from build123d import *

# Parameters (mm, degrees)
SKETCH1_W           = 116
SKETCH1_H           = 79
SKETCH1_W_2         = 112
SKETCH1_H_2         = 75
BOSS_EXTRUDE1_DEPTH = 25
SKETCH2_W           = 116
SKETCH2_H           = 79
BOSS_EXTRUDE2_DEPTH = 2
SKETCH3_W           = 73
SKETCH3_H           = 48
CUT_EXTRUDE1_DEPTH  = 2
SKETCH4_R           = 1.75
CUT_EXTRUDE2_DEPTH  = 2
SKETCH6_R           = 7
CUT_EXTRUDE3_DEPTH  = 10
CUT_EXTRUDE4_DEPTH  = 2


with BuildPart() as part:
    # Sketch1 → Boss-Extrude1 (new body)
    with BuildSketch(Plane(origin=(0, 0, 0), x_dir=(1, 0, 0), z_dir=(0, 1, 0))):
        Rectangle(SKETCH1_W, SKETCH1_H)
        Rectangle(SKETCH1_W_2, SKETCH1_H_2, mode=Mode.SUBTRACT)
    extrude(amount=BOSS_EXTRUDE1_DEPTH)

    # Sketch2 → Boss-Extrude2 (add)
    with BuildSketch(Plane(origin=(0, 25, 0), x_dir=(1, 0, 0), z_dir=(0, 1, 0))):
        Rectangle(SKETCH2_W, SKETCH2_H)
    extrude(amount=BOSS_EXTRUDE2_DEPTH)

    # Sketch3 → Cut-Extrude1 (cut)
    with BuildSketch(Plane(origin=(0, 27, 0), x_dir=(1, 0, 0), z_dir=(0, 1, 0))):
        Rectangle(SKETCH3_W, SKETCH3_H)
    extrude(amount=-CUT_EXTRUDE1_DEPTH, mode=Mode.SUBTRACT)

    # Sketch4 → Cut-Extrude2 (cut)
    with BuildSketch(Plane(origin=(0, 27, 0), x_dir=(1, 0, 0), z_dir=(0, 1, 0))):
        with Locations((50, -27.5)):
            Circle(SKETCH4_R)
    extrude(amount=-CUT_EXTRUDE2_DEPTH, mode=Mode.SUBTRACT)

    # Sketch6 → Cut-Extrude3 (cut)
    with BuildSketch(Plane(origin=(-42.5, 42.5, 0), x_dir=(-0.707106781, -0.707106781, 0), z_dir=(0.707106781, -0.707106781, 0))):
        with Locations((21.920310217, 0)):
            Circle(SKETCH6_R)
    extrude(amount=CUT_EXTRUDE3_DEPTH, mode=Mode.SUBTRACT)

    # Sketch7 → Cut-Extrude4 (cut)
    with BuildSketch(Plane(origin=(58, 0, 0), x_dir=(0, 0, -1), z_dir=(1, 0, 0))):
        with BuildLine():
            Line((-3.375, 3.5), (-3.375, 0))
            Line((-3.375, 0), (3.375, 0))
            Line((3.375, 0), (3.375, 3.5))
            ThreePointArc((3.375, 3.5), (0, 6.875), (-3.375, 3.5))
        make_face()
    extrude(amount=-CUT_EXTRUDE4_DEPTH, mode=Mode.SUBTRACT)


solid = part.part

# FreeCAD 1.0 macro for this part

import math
import FreeCAD as App
import Part
import Sketcher
Q = App.Units.Quantity

doc = App.newDocument("Part")
body = doc.addObject("PartDesign::Body", "Body")

# Sketch on XZ plane
sketch1 = body.newObject("Sketcher::SketchObject", "Sketch")
sketch1.AttachmentSupport = (doc.getObject("XZ_Plane"), [""])
sketch1.MapMode = "FlatFace"
sketch1.addGeometry(Part.LineSegment(App.Vector(-58, -39.5, 0), App.Vector(-58, 39.5, 0)), False)
sketch1.addGeometry(Part.LineSegment(App.Vector(-58, 39.5, 0), App.Vector(58, 39.5, 0)), False)
sketch1.addGeometry(Part.LineSegment(App.Vector(58, 39.5, 0), App.Vector(58, -39.5, 0)), False)
sketch1.addGeometry(Part.LineSegment(App.Vector(58, -39.5, 0), App.Vector(-58, -39.5, 0)), False)
sketch1.addGeometry(Part.LineSegment(App.Vector(56, 37.5, 0), App.Vector(-56, 37.5, 0)), False)
sketch1.addGeometry(Part.LineSegment(App.Vector(-56, 37.5, 0), App.Vector(-56, -37.5, 0)), False)
sketch1.addGeometry(Part.LineSegment(App.Vector(-56, -37.5, 0), App.Vector(56, -37.5, 0)), False)
sketch1.addGeometry(Part.LineSegment(App.Vector(56, -37.5, 0), App.Vector(56, 37.5, 0)), False)
sketch1.addConstraint(Sketcher.Constraint("Coincident", 0, 2, 1, 1))
sketch1.addConstraint(Sketcher.Constraint("Coincident", 1, 2, 2, 1))
sketch1.addConstraint(Sketcher.Constraint("Coincident", 2, 2, 3, 1))
sketch1.addConstraint(Sketcher.Constraint("Coincident", 3, 2, 0, 1))
sketch1.addConstraint(Sketcher.Constraint("Coincident", 4, 2, 5, 1))
sketch1.addConstraint(Sketcher.Constraint("Coincident", 5, 2, 6, 1))
sketch1.addConstraint(Sketcher.Constraint("Coincident", 6, 2, 7, 1))
sketch1.addConstraint(Sketcher.Constraint("Coincident", 7, 2, 4, 1))
sketch1.addConstraint(Sketcher.Constraint("Vertical", 0))
sketch1.addConstraint(Sketcher.Constraint("Horizontal", 1))
sketch1.addConstraint(Sketcher.Constraint("Vertical", 2))
sketch1.addConstraint(Sketcher.Constraint("Horizontal", 3))
sketch1.addConstraint(Sketcher.Constraint("Horizontal", 4))
sketch1.addConstraint(Sketcher.Constraint("Vertical", 5))
sketch1.addConstraint(Sketcher.Constraint("Horizontal", 6))
sketch1.addConstraint(Sketcher.Constraint("Vertical", 7))
sketch1.addConstraint(Sketcher.Constraint("Symmetric", 0, 2, 2, 2, -1, 1))
sketch1.addConstraint(Sketcher.Constraint("Symmetric", 4, 2, 6, 2, -1, 1))
sketch1.addConstraint(Sketcher.Constraint("DistanceX", 1, 1, 1, 2, Q("116 mm")))
sketch1.addConstraint(Sketcher.Constraint("DistanceX", 4, 2, 4, 1, Q("112 mm")))
sketch1.addConstraint(Sketcher.Constraint("DistanceY", 0, 1, 0, 2, Q("79 mm")))
sketch1.addConstraint(Sketcher.Constraint("DistanceY", 5, 2, 5, 1, Q("75 mm")))
pad1 = body.newObject("PartDesign::Pad", "Pad")
pad1.Profile = sketch1
pad1.Length = 25
pad1.Reversed = True

# Sketch on XZ plane
sketch2 = body.newObject("Sketcher::SketchObject", "Sketch001")
sketch2.AttachmentSupport = (doc.getObject("XZ_Plane"), [""])
sketch2.MapMode = "FlatFace"
sketch2.AttachmentOffset = App.Placement(App.Vector(0, 0, -25), App.Rotation())
sketch2.addGeometry(Part.LineSegment(App.Vector(-58, -39.5, 0), App.Vector(-58, 39.5, 0)), False)
sketch2.addGeometry(Part.LineSegment(App.Vector(-58, 39.5, 0), App.Vector(58, 39.5, 0)), False)
sketch2.addGeometry(Part.LineSegment(App.Vector(58, 39.5, 0), App.Vector(58, -39.5, 0)), False)
sketch2.addGeometry(Part.LineSegment(App.Vector(58, -39.5, 0), App.Vector(-58, -39.5, 0)), False)
sketch2.addConstraint(Sketcher.Constraint("Coincident", 0, 2, 1, 1))
sketch2.addConstraint(Sketcher.Constraint("Coincident", 1, 2, 2, 1))
sketch2.addConstraint(Sketcher.Constraint("Coincident", 2, 2, 3, 1))
sketch2.addConstraint(Sketcher.Constraint("Coincident", 3, 2, 0, 1))
sketch2.addConstraint(Sketcher.Constraint("Vertical", 0))
sketch2.addConstraint(Sketcher.Constraint("Horizontal", 1))
sketch2.addConstraint(Sketcher.Constraint("Vertical", 2))
sketch2.addConstraint(Sketcher.Constraint("Horizontal", 3))
sketch2.addConstraint(Sketcher.Constraint("Symmetric", 0, 2, 2, 2, -1, 1))
sketch2.addConstraint(Sketcher.Constraint("DistanceX", 1, 1, 1, 2, Q("116 mm")))
sketch2.addConstraint(Sketcher.Constraint("DistanceY", 0, 1, 0, 2, Q("79 mm")))
pad2 = body.newObject("PartDesign::Pad", "Pad001")
pad2.Profile = sketch2
pad2.Length = 2
pad2.Reversed = True

# Sketch on XZ plane
sketch3 = body.newObject("Sketcher::SketchObject", "Sketch002")
sketch3.AttachmentSupport = (doc.getObject("XZ_Plane"), [""])
sketch3.MapMode = "FlatFace"
sketch3.AttachmentOffset = App.Placement(App.Vector(0, 0, -27), App.Rotation())
sketch3.addGeometry(Part.LineSegment(App.Vector(-36.5, -24, 0), App.Vector(-36.5, 24, 0)), False)
sketch3.addGeometry(Part.LineSegment(App.Vector(-36.5, 24, 0), App.Vector(36.5, 24, 0)), False)
sketch3.addGeometry(Part.LineSegment(App.Vector(36.5, 24, 0), App.Vector(36.5, -24, 0)), False)
sketch3.addGeometry(Part.LineSegment(App.Vector(36.5, -24, 0), App.Vector(-36.5, -24, 0)), False)
sketch3.addConstraint(Sketcher.Constraint("Coincident", 0, 2, 1, 1))
sketch3.addConstraint(Sketcher.Constraint("Coincident", 1, 2, 2, 1))
sketch3.addConstraint(Sketcher.Constraint("Coincident", 2, 2, 3, 1))
sketch3.addConstraint(Sketcher.Constraint("Coincident", 3, 2, 0, 1))
sketch3.addConstraint(Sketcher.Constraint("Vertical", 0))
sketch3.addConstraint(Sketcher.Constraint("Horizontal", 1))
sketch3.addConstraint(Sketcher.Constraint("Vertical", 2))
sketch3.addConstraint(Sketcher.Constraint("Horizontal", 3))
sketch3.addConstraint(Sketcher.Constraint("Symmetric", 0, 2, 2, 2, -1, 1))
sketch3.addConstraint(Sketcher.Constraint("DistanceX", 1, 1, 1, 2, Q("73 mm")))
sketch3.addConstraint(Sketcher.Constraint("DistanceY", 0, 1, 0, 2, Q("48 mm")))
pocket1 = body.newObject("PartDesign::Pocket", "Pocket")
pocket1.Profile = sketch3
pocket1.Length = 2
pocket1.Reversed = True

# Sketch on XZ plane
sketch4 = body.newObject("Sketcher::SketchObject", "Sketch003")
sketch4.AttachmentSupport = (doc.getObject("XZ_Plane"), [""])
sketch4.MapMode = "FlatFace"
sketch4.AttachmentOffset = App.Placement(App.Vector(0, 0, -27), App.Rotation())
sketch4.addGeometry(Part.Circle(App.Vector(50, 27.5, 0), App.Vector(0, 0, 1), 1.75), False)
sketch4.addConstraint(Sketcher.Constraint("Diameter", 0, Q("3.5 mm")))
sketch4.addConstraint(Sketcher.Constraint("DistanceX", -1, 1, 0, 3, Q("50 mm")))
sketch4.addConstraint(Sketcher.Constraint("DistanceY", -1, 1, 0, 3, Q("27.5 mm")))
pocket2 = body.newObject("PartDesign::Pocket", "Pocket001")
pocket2.Profile = sketch4
pocket2.Length = 2
pocket2.Reversed = True

# Sketch on an angled plane
sketch5 = body.newObject("Sketcher::SketchObject", "Sketch004")
sketch5.Placement = App.Placement(App.Vector(-42.5, 42.5, 0), App.Rotation(App.Vector(-0.707106781, -0.707106781, 0), App.Vector(0, 0, -0.999999999), App.Vector(0.707106781, -0.707106781, 0), "ZXY"))
sketch5.addGeometry(Part.Circle(App.Vector(21.92031, 0, 0), App.Vector(0, 0, 1), 7), False)
sketch5.addConstraint(Sketcher.Constraint("PointOnObject", 0, 3, -1))
sketch5.addConstraint(Sketcher.Constraint("Diameter", 0, Q("14 mm")))
sketch5.addConstraint(Sketcher.Constraint("DistanceX", -1, 1, 0, 3, Q("21.92031 mm")))
pocket3 = body.newObject("PartDesign::Pocket", "Pocket002")
pocket3.Profile = sketch5
pocket3.Length = 10
pocket3.Reversed = True

# Sketch on YZ plane
sketch6 = body.newObject("Sketcher::SketchObject", "Sketch005")
sketch6.AttachmentSupport = (doc.getObject("YZ_Plane"), [""])
sketch6.MapMode = "FlatFace"
sketch6.AttachmentOffset = App.Placement(App.Vector(0, 0, 58), App.Rotation())
sketch6.addGeometry(Part.LineSegment(App.Vector(3.5, 3.375, 0), App.Vector(0, 3.375, 0)), False)
sketch6.addGeometry(Part.LineSegment(App.Vector(0, 3.375, 0), App.Vector(0, -3.375, 0)), False)
sketch6.addGeometry(Part.LineSegment(App.Vector(0, -3.375, 0), App.Vector(3.5, -3.375, 0)), False)
sketch6.addGeometry(Part.ArcOfCircle(Part.Circle(App.Vector(3.5, 0, 0), App.Vector(0, 0, 1), 3.375), math.radians(-90), math.radians(90)), False)
sketch6.addConstraint(Sketcher.Constraint("Coincident", 0, 2, 1, 1))
sketch6.addConstraint(Sketcher.Constraint("Coincident", 1, 2, 2, 1))
sketch6.addConstraint(Sketcher.Constraint("Tangent", 2, 2, 3, 1))
sketch6.addConstraint(Sketcher.Constraint("Tangent", 3, 2, 0, 1))
sketch6.addConstraint(Sketcher.Constraint("Horizontal", 0))
sketch6.addConstraint(Sketcher.Constraint("Vertical", 1))
sketch6.addConstraint(Sketcher.Constraint("Horizontal", 2))
sketch6.addConstraint(Sketcher.Constraint("Symmetric", 0, 2, 1, 2, -1, 1))
sketch6.addConstraint(Sketcher.Constraint("DistanceX", 0, 2, 0, 1, Q("3.5 mm")))
sketch6.addConstraint(Sketcher.Constraint("Radius", 3, Q("3.375 mm")))
pocket4 = body.newObject("PartDesign::Pocket", "Pocket003")
pocket4.Profile = sketch6
pocket4.Length = 2

doc.recompute()
